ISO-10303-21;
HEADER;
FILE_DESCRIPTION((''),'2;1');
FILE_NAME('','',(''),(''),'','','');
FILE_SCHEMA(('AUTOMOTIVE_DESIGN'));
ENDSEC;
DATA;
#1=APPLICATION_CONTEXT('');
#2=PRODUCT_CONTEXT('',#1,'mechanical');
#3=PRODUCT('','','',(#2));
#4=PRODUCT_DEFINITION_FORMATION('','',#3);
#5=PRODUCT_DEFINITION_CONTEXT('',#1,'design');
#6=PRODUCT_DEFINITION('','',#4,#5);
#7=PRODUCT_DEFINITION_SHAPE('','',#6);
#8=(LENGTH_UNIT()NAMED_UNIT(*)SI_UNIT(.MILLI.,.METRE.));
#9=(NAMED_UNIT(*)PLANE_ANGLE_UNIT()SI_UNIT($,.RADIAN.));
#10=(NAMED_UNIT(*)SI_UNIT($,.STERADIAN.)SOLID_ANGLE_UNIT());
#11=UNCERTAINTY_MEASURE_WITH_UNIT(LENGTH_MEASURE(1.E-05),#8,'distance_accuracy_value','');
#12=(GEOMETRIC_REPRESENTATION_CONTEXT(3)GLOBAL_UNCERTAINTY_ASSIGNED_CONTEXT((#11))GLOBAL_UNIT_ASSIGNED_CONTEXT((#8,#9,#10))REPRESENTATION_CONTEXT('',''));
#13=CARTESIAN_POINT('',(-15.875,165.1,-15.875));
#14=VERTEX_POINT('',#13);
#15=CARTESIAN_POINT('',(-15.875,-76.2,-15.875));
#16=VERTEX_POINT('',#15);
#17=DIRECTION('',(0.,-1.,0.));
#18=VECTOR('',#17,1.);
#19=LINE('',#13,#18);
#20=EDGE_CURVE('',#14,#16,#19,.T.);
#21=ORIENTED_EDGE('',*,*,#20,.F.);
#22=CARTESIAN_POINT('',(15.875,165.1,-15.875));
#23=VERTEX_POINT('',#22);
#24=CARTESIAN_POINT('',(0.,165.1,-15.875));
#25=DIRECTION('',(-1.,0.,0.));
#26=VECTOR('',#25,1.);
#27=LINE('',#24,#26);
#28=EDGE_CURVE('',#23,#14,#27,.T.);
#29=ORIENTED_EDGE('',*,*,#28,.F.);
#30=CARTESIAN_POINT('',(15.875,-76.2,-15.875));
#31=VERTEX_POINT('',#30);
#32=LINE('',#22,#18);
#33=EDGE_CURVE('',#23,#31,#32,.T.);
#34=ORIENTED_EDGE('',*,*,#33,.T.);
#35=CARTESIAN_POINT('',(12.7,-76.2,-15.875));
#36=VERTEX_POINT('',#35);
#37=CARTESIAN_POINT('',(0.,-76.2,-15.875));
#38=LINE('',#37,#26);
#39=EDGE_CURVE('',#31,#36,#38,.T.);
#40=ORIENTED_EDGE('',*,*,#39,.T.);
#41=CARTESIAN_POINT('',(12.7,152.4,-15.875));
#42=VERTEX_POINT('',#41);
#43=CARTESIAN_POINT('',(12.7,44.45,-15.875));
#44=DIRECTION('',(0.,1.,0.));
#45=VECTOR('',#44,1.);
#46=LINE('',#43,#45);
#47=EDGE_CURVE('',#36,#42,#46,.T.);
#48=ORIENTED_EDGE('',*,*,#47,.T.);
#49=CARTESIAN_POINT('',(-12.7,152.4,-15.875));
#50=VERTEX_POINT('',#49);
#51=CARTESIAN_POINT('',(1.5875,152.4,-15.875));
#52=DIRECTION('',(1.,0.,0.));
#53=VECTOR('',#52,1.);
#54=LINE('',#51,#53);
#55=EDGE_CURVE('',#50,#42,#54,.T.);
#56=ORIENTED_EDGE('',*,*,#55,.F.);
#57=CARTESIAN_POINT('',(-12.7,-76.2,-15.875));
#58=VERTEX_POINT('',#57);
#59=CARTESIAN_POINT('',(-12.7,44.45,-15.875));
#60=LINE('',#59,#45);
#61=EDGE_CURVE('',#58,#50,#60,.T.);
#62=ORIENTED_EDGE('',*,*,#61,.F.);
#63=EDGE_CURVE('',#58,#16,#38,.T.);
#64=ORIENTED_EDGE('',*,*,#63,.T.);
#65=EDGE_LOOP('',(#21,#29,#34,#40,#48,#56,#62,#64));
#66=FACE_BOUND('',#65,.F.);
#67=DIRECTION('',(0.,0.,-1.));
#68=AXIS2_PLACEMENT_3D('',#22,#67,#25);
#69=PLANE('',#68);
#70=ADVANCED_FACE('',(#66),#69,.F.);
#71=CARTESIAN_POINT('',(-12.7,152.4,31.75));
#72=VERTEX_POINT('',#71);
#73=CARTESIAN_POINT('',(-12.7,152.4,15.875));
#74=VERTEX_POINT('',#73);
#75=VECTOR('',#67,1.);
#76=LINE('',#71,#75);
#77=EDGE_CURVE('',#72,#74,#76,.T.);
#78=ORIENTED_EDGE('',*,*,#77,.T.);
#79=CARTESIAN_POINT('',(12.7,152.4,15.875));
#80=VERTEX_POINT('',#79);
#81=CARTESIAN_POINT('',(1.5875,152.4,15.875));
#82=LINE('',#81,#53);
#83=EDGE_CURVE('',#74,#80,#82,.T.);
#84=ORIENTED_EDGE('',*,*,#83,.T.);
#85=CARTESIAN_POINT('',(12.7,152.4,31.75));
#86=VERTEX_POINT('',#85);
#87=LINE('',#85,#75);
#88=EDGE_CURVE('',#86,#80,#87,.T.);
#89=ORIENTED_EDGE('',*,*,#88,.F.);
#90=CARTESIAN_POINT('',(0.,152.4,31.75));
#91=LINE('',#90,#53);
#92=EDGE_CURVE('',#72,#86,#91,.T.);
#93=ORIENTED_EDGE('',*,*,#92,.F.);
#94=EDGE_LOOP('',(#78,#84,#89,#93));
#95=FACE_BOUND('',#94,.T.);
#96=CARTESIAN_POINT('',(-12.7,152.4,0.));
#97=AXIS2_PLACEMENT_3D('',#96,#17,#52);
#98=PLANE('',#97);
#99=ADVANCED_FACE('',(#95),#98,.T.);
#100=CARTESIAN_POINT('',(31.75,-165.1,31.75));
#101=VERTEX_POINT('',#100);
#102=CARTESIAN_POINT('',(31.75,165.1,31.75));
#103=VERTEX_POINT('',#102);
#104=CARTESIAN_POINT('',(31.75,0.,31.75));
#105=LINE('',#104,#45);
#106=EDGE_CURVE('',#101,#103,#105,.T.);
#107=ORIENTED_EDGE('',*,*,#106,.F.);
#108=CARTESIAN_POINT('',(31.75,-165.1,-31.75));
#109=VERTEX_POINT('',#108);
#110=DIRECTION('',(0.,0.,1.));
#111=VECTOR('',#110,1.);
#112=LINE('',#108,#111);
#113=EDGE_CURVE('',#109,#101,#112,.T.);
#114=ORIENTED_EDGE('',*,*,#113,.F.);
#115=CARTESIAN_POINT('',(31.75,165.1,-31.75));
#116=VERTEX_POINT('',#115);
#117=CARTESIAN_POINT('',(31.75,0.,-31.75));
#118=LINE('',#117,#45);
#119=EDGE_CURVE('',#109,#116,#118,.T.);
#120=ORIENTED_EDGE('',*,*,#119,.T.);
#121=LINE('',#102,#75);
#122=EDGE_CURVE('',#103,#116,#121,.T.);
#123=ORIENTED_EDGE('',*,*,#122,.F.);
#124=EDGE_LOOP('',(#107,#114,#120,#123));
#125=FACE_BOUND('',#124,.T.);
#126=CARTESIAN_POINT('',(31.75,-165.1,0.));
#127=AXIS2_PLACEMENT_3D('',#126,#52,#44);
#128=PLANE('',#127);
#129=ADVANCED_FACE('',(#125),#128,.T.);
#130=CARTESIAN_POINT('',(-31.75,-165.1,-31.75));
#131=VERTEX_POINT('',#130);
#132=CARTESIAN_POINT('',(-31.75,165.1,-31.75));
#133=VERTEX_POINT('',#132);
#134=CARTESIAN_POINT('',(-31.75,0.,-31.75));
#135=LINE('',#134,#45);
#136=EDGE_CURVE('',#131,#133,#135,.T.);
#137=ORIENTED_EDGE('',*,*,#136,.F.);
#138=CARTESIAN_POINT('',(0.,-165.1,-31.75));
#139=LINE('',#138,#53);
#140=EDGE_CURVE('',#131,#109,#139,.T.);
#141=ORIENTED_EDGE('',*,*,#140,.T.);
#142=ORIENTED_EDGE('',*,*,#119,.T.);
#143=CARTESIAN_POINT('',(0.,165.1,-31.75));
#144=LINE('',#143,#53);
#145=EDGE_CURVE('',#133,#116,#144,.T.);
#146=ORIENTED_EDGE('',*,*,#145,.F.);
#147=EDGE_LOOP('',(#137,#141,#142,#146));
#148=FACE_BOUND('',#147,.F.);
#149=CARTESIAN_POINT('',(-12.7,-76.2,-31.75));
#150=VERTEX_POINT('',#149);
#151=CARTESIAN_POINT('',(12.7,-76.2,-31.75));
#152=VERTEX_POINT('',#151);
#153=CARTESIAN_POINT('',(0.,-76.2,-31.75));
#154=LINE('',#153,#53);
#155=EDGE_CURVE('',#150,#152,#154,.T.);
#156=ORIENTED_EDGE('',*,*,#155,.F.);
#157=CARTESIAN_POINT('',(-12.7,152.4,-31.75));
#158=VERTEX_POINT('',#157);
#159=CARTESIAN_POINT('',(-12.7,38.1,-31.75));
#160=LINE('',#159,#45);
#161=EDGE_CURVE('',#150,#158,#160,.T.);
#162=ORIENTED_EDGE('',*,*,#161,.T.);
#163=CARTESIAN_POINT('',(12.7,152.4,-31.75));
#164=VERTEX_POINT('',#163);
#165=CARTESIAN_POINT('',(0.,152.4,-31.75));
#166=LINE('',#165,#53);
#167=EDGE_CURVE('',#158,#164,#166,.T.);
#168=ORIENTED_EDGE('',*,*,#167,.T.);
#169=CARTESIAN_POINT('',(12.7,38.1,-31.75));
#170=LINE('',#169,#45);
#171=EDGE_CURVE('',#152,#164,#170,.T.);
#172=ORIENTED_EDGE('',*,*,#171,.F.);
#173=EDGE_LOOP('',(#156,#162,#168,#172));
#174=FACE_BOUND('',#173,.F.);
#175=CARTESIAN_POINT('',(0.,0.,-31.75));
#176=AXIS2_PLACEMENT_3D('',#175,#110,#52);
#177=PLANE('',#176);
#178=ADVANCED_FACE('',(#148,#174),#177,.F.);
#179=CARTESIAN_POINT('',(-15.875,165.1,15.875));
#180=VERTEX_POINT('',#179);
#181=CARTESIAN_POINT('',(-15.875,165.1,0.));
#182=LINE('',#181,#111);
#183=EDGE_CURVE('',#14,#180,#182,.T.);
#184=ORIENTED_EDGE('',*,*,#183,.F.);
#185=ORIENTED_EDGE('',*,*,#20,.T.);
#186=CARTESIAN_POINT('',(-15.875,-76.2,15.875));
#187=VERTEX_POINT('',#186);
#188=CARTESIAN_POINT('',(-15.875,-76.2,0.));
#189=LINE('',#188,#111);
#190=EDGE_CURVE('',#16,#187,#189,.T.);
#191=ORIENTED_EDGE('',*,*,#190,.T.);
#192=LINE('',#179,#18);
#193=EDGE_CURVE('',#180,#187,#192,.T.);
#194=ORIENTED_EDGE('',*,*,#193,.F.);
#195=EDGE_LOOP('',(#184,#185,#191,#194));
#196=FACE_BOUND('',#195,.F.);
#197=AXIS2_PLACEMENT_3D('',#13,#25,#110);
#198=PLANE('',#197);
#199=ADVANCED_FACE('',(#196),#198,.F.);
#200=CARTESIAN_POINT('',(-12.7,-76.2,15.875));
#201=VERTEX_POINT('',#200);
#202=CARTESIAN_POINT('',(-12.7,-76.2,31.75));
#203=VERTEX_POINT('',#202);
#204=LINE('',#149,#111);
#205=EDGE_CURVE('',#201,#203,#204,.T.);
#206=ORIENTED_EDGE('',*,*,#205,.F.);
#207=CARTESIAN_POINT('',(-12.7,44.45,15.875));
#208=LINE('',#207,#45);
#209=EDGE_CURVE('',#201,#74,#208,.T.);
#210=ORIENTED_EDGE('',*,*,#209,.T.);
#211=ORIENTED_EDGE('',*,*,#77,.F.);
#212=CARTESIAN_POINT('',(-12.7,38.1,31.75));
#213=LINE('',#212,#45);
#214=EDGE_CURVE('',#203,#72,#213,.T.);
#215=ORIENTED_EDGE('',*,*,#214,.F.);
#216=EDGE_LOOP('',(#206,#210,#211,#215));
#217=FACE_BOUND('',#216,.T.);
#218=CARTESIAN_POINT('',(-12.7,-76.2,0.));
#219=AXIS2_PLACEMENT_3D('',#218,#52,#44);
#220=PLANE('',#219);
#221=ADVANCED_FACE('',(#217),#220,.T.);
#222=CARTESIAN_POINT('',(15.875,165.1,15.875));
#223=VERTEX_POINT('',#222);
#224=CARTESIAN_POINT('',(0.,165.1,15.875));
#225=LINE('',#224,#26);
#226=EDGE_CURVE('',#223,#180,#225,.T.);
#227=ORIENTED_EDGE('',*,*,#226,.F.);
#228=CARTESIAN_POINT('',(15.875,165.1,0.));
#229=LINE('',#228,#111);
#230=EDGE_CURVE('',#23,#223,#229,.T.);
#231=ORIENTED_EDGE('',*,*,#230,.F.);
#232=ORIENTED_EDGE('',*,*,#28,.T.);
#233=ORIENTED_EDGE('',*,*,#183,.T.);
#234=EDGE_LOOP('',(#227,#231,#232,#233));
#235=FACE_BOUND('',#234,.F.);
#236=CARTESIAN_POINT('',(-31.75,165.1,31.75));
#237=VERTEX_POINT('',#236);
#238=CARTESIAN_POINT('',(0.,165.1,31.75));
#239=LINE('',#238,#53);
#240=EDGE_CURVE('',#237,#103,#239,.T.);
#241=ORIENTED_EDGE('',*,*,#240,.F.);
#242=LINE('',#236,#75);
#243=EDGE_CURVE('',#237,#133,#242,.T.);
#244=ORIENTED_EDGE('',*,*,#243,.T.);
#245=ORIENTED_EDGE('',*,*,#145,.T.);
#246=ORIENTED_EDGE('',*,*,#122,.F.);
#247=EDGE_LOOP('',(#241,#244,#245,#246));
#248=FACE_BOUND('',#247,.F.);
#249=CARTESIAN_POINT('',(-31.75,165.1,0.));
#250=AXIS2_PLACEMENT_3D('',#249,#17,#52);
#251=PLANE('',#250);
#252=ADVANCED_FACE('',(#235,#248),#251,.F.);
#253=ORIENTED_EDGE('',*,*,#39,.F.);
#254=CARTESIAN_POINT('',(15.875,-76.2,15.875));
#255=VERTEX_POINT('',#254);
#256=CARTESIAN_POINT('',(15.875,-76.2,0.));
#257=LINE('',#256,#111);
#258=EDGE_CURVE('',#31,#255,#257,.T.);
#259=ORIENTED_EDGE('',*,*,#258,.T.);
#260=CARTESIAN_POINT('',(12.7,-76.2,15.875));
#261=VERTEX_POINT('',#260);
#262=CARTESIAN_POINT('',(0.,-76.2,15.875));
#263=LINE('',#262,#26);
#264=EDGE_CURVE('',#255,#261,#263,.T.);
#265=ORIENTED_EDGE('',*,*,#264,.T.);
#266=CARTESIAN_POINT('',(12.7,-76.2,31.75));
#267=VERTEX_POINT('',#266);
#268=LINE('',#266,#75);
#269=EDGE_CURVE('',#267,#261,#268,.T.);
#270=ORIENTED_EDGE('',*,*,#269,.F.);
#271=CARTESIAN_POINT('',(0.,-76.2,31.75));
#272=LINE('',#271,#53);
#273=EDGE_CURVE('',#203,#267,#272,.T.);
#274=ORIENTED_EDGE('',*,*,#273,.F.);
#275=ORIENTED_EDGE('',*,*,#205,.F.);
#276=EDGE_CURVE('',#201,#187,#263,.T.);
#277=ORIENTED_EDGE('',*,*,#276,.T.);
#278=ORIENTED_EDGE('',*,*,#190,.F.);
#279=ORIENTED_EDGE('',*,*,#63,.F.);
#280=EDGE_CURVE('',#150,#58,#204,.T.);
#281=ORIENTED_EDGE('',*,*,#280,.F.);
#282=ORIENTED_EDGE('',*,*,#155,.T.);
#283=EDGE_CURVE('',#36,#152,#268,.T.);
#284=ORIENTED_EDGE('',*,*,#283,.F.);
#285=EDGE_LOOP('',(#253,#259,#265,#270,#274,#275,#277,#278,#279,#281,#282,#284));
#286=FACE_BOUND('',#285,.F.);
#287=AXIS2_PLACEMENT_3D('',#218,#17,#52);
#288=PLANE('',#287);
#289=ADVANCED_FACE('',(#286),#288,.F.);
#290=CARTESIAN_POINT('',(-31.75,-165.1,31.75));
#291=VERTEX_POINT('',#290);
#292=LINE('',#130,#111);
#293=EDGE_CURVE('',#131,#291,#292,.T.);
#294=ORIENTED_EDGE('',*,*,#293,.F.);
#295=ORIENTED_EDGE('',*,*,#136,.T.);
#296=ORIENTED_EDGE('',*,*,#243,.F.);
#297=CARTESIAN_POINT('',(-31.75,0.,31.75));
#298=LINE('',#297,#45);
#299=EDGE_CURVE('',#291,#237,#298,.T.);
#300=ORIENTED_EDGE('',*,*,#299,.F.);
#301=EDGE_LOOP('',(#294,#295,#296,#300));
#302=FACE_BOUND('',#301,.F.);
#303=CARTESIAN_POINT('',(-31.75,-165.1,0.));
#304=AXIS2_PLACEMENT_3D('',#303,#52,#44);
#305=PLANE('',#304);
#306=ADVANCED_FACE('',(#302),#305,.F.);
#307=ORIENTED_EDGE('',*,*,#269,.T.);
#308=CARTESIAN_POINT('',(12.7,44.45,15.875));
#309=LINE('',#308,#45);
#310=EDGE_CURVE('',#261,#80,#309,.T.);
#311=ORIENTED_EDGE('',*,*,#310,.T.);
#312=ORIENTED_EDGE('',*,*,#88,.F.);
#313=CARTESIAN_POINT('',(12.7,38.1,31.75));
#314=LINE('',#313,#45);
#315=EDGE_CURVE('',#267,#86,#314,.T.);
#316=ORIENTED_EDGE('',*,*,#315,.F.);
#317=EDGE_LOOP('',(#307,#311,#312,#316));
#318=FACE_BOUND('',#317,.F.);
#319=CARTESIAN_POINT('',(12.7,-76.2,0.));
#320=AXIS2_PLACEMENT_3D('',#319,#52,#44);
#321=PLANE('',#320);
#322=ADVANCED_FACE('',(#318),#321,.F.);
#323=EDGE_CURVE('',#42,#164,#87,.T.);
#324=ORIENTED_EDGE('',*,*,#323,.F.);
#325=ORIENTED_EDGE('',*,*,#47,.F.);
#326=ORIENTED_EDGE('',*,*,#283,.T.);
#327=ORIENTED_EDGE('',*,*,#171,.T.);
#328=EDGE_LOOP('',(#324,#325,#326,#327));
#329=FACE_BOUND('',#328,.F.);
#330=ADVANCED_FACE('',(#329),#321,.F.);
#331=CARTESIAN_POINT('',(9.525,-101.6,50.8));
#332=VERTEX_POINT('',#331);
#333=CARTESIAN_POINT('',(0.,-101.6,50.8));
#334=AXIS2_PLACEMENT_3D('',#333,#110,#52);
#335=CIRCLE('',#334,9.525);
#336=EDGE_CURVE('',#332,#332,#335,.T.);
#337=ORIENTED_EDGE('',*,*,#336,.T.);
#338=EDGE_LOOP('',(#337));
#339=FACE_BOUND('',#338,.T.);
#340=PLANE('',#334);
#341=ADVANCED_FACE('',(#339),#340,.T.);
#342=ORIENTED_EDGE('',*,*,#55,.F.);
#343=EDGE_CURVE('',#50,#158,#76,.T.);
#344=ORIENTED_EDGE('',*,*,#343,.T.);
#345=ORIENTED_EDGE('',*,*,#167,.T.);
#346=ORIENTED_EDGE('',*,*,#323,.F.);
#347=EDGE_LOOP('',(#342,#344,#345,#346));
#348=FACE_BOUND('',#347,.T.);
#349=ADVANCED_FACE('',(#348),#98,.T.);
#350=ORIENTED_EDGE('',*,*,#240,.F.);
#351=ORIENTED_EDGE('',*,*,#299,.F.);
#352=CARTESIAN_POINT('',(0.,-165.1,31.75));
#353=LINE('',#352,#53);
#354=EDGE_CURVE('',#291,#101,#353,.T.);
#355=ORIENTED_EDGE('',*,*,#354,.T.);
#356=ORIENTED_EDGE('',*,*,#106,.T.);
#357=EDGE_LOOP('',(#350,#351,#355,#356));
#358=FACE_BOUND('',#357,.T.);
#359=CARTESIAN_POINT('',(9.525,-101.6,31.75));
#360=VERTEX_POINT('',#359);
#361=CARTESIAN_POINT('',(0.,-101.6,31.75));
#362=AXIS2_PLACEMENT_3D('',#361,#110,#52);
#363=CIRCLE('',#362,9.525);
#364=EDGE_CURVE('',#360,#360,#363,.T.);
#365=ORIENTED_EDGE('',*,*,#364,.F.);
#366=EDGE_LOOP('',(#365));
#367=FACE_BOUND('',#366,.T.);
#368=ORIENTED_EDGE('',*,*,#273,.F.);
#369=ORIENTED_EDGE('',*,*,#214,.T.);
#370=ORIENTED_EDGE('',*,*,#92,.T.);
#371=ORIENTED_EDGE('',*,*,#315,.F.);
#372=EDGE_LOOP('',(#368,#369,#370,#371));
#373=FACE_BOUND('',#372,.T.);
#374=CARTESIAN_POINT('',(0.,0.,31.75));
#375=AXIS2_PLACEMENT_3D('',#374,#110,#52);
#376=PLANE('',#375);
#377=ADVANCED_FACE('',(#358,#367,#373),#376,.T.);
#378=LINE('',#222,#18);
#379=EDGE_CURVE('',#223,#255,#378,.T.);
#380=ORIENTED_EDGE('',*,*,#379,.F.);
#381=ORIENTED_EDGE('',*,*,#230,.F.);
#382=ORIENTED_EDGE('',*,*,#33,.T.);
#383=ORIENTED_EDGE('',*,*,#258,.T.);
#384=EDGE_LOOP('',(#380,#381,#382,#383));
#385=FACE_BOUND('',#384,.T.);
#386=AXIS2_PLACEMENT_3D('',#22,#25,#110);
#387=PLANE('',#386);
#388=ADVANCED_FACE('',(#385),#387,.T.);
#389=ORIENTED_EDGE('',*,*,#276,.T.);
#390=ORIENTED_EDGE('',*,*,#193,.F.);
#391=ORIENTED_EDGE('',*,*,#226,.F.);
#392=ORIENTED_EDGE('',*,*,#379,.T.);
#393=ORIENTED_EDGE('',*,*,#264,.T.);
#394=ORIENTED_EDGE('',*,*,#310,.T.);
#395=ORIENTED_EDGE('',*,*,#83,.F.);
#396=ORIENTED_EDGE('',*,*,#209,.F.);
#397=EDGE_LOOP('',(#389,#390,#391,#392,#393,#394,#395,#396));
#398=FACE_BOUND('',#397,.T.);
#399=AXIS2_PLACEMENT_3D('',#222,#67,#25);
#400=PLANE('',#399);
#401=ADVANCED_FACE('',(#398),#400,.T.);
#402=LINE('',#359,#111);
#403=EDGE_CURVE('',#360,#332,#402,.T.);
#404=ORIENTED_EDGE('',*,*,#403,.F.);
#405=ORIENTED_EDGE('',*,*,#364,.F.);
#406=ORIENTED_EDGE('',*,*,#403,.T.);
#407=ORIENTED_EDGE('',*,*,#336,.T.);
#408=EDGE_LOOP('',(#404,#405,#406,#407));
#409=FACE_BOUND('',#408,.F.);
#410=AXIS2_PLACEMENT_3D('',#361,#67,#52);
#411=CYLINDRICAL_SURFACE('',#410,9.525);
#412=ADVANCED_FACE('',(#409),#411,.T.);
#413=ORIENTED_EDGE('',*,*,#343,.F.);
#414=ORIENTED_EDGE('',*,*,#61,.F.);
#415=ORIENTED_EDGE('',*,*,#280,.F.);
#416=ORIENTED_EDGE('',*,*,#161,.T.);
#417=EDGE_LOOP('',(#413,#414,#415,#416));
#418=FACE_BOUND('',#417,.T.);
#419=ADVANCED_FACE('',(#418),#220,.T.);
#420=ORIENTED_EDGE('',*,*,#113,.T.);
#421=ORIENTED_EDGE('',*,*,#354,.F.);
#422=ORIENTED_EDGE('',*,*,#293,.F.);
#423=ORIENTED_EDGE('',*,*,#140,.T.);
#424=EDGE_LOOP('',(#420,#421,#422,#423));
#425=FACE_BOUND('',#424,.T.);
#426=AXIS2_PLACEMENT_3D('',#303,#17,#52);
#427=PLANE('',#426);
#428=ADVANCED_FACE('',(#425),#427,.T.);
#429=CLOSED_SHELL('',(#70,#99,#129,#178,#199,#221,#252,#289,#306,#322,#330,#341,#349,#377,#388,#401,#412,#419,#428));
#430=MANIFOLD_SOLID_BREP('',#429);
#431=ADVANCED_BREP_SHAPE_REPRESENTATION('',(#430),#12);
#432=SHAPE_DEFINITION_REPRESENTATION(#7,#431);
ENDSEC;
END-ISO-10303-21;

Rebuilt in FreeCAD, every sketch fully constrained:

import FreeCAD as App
import Part
import Sketcher
Q = App.Units.Quantity


def add_polygon(sketch, points):
    """Adds a closed chain of lines whose ends are joined by coincident constraints."""
    first, n = sketch.GeometryCount, len(points)
    for a, b in zip(points, points[1:] + points[:1]):
        sketch.addGeometry(Part.LineSegment(App.Vector(*a, 0), App.Vector(*b, 0)), False)
    for i in range(n):
        sketch.addConstraint(Sketcher.Constraint("Coincident", first + i, 2, first + (i + 1) % n, 1))

doc = App.newDocument("Part")
body = doc.addObject("PartDesign::Body", "Body")

sketch1 = body.newObject("Sketcher::SketchObject", "Sketch")
sketch1.AttachmentSupport = (doc.getObject("XY_Plane"), [""])
sketch1.MapMode = "FlatFace"
add_polygon(sketch1, [(-32, 165), (-32, -165), (32, -165), (32, 165)])
add_polygon(sketch1, [(13, -76), (-13, -76), (-13, 152), (13, 152)])
sketch1.addConstraint(Sketcher.Constraint("Vertical", 0))
sketch1.addConstraint(Sketcher.Constraint("Horizontal", 1))
sketch1.addConstraint(Sketcher.Constraint("Vertical", 2))
sketch1.addConstraint(Sketcher.Constraint("Horizontal", 3))
sketch1.addConstraint(Sketcher.Constraint("Horizontal", 4))
sketch1.addConstraint(Sketcher.Constraint("Vertical", 5))
sketch1.addConstraint(Sketcher.Constraint("Horizontal", 6))
sketch1.addConstraint(Sketcher.Constraint("Vertical", 7))
sketch1.addConstraint(Sketcher.Constraint("Symmetric", 0, 2, 2, 2, -1, 1))
sketch1.addConstraint(Sketcher.Constraint("DistanceX", 4, 2, 4, 1, Q("1 in")))
sketch1.addConstraint(Sketcher.Constraint("DistanceY", 0, 2, 0, 1, Q("13 in")))
sketch1.addConstraint(Sketcher.Constraint("DistanceY", 5, 1, 5, 2, Q("9 in")))
sketch1.addConstraint(Sketcher.Constraint("DistanceX", 1, 1, 1, 2, Q("2.5 in")))
sketch1.addConstraint(Sketcher.Constraint("DistanceY", 4, 2, -1, 1, Q("3 in")))
sketch1.addConstraint(Sketcher.Constraint("DistanceX", 4, 2, -1, 1, Q("0.5 in")))
pad1 = body.newObject("PartDesign::Pad", "Pad")
pad1.Profile = sketch1
pad1.Length = Q("2.5 in")
pad1.Midplane = True

sketch2 = body.newObject("Sketcher::SketchObject", "Sketch001")
sketch2.AttachmentSupport = (doc.getObject("XZ_Plane"), [""])
sketch2.MapMode = "FlatFace"
sketch2.AttachmentOffset = App.Placement(App.Vector(0, 0, -6.5 * 25.4), App.Rotation())
add_polygon(sketch2, [(16, 16), (16, -16), (-16, -16), (-16, 16)])
sketch2.addConstraint(Sketcher.Constraint("Vertical", 0))
sketch2.addConstraint(Sketcher.Constraint("Horizontal", 1))
sketch2.addConstraint(Sketcher.Constraint("Vertical", 2))
sketch2.addConstraint(Sketcher.Constraint("Horizontal", 3))
sketch2.addConstraint(Sketcher.Constraint("Symmetric", 0, 2, 2, 2, -1, 1))
sketch2.addConstraint(Sketcher.Constraint("Equal", 3, 0))
sketch2.addConstraint(Sketcher.Constraint("DistanceX", 1, 2, 1, 1, Q("1.25 in")))
pocket1 = body.newObject("PartDesign::Pocket", "Pocket")
pocket1.Profile = sketch2
pocket1.Length = Q("9.5 in")
pocket1.Reversed = True

sketch3 = body.newObject("Sketcher::SketchObject", "Sketch002")
sketch3.AttachmentSupport = (doc.getObject("XY_Plane"), [""])
sketch3.MapMode = "FlatFace"
sketch3.AttachmentOffset = App.Placement(App.Vector(0, 0, 1.25 * 25.4), App.Rotation())
sketch3.addGeometry(Part.Circle(App.Vector(0, -102, 0), App.Vector(0, 0, 1), 10), False)
sketch3.addConstraint(Sketcher.Constraint("PointOnObject", 0, 3, -2))
sketch3.addConstraint(Sketcher.Constraint("Diameter", 0, Q("0.75 in")))
sketch3.addConstraint(Sketcher.Constraint("DistanceY", 0, 3, -1, 1, Q("4 in")))
pad2 = body.newObject("PartDesign::Pad", "Pad001")
pad2.Profile = sketch3
pad2.Length = Q("0.75 in")

doc.recompute()
